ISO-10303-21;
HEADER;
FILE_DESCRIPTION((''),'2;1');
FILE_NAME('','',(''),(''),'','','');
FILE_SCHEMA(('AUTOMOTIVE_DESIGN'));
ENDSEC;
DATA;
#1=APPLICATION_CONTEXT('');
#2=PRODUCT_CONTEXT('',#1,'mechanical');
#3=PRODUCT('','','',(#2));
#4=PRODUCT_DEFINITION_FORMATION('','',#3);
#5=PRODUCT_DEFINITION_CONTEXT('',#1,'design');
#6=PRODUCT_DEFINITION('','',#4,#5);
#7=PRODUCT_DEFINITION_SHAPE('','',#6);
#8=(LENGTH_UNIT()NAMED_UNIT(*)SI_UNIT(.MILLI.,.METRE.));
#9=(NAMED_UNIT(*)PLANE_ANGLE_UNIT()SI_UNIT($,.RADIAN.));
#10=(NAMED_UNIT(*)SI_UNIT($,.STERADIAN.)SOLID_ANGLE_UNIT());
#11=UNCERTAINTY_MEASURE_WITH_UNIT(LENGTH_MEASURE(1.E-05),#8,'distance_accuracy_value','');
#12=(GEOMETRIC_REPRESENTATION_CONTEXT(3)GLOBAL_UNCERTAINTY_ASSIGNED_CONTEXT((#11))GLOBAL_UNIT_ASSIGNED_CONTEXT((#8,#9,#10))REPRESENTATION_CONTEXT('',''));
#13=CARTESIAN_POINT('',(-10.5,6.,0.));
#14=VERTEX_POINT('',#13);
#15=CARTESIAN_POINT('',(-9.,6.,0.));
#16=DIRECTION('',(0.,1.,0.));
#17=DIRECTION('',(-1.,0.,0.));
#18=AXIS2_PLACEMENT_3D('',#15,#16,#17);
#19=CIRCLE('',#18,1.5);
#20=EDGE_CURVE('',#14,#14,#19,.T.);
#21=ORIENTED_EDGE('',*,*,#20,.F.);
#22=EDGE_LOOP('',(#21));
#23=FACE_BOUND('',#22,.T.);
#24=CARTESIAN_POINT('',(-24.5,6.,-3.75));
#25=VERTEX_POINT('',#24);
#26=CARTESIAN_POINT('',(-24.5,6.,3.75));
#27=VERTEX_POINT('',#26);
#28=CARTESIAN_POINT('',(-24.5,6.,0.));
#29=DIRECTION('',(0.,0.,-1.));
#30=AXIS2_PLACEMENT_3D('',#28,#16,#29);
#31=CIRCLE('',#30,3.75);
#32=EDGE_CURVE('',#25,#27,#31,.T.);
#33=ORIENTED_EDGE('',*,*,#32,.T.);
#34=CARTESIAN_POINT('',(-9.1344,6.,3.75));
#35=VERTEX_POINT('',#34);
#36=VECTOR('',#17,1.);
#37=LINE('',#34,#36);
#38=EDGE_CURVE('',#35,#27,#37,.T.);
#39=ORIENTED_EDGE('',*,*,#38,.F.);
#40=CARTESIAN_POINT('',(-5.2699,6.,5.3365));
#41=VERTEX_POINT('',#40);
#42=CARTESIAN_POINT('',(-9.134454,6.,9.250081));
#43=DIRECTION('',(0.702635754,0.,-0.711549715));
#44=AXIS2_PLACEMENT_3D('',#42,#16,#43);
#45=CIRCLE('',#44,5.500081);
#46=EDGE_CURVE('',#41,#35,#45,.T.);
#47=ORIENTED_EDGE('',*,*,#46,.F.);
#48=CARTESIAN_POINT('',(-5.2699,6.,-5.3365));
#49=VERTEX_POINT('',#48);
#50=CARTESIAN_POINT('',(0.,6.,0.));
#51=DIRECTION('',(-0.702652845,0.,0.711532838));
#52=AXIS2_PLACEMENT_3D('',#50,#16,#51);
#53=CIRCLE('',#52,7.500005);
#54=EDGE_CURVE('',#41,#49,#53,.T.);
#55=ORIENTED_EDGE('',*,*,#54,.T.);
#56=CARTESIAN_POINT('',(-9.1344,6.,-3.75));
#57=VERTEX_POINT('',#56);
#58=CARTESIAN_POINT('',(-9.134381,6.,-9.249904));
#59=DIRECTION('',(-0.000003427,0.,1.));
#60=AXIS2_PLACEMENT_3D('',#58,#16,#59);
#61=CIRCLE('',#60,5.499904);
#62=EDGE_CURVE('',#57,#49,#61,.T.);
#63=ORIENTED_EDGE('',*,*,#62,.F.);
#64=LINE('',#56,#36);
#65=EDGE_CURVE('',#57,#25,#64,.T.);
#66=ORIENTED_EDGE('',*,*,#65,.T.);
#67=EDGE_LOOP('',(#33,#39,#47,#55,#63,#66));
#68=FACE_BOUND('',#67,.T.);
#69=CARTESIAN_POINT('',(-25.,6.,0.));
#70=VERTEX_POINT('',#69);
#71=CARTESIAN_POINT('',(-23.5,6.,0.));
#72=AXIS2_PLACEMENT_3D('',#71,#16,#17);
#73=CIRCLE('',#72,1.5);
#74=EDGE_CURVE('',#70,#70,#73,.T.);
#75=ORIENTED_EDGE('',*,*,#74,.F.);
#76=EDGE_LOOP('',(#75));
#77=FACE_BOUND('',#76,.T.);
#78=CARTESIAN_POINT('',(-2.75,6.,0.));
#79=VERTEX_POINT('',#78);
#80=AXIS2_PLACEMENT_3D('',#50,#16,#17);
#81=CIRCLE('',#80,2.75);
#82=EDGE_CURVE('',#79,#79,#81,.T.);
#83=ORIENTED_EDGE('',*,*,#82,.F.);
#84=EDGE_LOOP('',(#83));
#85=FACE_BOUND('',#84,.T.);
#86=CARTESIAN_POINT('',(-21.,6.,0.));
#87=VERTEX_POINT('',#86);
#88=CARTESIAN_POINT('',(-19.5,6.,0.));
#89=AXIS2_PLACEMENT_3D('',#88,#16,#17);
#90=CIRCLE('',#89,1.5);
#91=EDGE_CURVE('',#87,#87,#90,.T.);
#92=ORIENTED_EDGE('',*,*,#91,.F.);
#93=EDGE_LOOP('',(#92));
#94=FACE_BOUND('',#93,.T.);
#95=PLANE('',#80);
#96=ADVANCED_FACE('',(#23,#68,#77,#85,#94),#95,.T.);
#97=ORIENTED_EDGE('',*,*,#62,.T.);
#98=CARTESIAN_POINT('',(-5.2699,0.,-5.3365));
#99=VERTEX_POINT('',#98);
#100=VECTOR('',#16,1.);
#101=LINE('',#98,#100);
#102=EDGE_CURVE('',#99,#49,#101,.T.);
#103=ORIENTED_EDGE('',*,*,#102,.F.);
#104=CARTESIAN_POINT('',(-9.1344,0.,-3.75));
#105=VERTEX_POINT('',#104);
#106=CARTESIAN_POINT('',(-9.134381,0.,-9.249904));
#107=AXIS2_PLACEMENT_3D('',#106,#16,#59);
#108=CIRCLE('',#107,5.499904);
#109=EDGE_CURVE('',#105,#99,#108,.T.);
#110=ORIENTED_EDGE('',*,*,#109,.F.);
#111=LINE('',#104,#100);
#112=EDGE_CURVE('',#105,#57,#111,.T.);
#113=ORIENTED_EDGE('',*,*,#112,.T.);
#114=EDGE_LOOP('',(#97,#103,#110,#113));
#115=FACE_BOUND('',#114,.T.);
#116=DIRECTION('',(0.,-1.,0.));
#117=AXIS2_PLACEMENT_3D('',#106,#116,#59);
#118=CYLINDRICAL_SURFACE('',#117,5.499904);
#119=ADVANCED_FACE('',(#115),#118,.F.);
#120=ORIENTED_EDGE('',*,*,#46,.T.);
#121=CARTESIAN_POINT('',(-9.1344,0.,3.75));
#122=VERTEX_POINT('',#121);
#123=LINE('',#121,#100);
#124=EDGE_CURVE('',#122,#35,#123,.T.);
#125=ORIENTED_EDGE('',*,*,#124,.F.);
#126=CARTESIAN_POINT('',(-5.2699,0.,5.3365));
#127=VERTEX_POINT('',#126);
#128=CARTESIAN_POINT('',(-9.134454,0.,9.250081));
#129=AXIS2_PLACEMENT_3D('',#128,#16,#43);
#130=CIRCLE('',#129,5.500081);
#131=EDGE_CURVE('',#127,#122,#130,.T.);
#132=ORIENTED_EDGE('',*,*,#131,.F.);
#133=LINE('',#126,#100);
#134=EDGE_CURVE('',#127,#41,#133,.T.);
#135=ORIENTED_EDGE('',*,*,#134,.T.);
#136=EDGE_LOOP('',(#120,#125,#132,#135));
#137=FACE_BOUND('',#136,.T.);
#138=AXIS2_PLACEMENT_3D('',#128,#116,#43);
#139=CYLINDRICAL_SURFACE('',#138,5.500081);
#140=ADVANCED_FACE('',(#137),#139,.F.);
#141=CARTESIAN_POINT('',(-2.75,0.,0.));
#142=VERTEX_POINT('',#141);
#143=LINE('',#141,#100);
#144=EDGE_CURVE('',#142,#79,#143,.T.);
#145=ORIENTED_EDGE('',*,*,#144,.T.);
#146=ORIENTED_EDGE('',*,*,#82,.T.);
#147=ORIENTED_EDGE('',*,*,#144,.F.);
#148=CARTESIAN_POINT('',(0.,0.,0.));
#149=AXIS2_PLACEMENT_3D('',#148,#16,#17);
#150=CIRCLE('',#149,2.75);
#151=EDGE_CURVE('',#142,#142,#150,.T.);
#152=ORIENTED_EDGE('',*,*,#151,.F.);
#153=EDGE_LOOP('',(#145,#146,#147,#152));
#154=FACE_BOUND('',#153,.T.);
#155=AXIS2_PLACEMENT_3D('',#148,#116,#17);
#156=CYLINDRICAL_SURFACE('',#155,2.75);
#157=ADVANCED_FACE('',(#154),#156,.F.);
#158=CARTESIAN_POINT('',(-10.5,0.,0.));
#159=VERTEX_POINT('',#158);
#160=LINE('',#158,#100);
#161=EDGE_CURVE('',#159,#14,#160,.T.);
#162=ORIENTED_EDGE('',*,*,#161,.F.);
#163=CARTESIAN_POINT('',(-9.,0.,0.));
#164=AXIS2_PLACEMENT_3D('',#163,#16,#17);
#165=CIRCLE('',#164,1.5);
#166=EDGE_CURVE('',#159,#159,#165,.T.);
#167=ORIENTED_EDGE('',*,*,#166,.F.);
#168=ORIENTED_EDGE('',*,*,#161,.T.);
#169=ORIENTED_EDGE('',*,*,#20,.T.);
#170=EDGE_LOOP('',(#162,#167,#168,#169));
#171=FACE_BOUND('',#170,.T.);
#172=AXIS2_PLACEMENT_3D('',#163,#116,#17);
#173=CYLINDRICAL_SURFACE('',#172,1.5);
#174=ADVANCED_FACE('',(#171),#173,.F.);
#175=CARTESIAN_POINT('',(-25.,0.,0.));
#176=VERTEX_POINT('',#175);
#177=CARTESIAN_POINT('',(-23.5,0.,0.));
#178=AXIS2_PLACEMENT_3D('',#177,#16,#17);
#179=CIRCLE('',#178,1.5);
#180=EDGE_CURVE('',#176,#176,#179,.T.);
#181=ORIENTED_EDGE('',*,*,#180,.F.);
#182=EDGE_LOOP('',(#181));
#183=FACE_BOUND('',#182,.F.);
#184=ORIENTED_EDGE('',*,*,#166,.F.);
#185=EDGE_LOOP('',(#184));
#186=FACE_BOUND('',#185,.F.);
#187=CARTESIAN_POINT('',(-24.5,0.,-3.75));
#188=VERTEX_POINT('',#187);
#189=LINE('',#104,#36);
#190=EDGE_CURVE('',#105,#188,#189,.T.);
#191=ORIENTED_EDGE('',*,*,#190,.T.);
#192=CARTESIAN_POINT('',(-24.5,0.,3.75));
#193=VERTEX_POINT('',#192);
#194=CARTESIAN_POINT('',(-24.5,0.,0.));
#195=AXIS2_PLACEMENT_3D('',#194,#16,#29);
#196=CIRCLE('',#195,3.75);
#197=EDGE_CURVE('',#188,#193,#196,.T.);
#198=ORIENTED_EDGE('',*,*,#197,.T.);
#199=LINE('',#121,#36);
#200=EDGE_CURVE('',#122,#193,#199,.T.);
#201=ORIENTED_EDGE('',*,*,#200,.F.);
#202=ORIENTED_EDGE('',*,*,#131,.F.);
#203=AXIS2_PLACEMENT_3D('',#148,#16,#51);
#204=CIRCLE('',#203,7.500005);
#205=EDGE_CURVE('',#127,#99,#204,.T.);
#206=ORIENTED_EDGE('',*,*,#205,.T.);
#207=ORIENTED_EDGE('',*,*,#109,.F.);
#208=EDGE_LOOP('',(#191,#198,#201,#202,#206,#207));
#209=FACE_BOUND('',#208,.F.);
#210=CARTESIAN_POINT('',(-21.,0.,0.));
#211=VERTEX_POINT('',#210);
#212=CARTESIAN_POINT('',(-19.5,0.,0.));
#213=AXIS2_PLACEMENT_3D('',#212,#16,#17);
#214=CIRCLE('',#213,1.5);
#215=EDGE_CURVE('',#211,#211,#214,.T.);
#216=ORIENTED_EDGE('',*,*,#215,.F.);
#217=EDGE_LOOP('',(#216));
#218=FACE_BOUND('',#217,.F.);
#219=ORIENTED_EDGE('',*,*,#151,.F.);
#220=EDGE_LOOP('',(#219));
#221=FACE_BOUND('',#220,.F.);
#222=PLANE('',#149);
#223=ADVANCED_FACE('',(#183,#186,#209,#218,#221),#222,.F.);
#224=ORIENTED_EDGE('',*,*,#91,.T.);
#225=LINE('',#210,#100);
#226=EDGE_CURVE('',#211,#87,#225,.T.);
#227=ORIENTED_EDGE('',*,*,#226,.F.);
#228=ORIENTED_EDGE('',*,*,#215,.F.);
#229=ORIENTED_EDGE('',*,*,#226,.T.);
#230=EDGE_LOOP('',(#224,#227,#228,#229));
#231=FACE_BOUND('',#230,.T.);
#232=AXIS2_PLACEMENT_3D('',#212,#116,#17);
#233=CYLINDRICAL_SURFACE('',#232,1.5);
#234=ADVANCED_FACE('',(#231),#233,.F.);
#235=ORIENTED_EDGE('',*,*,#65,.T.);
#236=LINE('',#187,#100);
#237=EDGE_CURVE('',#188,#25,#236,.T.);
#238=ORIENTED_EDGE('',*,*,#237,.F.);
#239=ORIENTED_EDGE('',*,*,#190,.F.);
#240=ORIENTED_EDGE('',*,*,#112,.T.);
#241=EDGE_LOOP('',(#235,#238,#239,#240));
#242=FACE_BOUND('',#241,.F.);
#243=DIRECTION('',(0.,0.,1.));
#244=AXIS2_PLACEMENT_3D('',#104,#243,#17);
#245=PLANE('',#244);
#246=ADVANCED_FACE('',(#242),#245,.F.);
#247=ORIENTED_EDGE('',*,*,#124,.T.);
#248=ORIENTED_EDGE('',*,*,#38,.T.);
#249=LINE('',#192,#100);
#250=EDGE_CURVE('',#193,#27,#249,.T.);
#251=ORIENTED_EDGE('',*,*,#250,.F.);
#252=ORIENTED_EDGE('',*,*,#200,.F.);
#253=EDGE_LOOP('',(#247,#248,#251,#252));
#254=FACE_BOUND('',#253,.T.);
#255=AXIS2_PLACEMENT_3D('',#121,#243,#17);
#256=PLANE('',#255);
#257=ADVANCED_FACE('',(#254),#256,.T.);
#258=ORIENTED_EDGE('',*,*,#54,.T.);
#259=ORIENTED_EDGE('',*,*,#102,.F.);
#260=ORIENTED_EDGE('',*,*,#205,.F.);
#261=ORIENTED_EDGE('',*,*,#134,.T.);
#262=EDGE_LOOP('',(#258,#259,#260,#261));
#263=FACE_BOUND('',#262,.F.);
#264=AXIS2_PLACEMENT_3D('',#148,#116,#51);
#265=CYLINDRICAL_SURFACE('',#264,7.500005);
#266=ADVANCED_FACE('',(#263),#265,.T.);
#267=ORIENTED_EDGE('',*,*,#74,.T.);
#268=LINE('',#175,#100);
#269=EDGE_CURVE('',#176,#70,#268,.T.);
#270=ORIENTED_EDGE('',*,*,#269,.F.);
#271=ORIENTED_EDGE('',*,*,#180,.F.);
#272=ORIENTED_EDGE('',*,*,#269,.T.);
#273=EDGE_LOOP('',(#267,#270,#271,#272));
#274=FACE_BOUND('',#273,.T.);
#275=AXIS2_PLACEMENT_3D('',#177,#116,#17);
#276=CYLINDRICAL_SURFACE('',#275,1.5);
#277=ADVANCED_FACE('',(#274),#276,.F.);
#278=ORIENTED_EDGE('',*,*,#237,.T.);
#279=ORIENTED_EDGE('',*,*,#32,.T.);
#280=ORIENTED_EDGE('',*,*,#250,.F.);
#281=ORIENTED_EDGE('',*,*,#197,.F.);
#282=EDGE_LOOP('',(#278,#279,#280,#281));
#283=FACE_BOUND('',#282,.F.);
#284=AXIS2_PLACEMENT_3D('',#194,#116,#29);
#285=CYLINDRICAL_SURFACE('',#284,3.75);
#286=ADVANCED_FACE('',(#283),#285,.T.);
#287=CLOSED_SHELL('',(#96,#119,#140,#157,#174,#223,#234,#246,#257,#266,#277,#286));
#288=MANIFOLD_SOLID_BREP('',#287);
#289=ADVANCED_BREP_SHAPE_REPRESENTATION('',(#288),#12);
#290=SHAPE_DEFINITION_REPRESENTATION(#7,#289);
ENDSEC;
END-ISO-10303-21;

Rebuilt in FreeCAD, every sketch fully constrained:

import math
import FreeCAD as App
import Part
import Sketcher

V = App.Vector
Q = App.Units.Quantity

doc = App.newDocument("Part")
params = doc.addObject("Spreadsheet::Sheet", "Params")
for row, (alias, value) in enumerate([
    ("sketch1_diameter", "3 mm"),
    ("sketch1_diameter2", "5.5 mm"),
    ("sketch1_radius", "5.5 mm"),
    ("sketch1_radius2", "7.5 mm"),
    ("sketch1_radius3", "3.75 mm"),
    ("pad1_length", "6 mm"),
], start=1):
    params.set(f"A{row}", alias)
    params.set(f"B{row}", "=" + value)
    params.setAlias(f"B{row}", alias)

body = doc.addObject("PartDesign::Body", "Body")

# Sketch on XZ plane
sketch1 = body.newObject("Sketcher::SketchObject", "Sketch")
sketch1.AttachmentSupport = (doc.getObject("XZ_Plane"), [""])
sketch1.MapMode = "FlatFace"
sketch1.addGeometry([
    Part.ArcOfCircle(Part.Circle(V(-9.1344, 9.25, 0), V(0, 0, 1), 5.499986), math.radians(-90), math.radians(-45.360948)),  # 0
    Part.ArcOfCircle(Part.Circle(V(0, 0, 0), V(0, 0, 1), 7.500005), math.radians(-134.640231), math.radians(134.640231)),  # 1
    Part.ArcOfCircle(Part.Circle(V(-9.1344, -9.25, 0), V(0, 0, 1), 5.5), math.radians(45.360948), math.radians(90)),  # 2
    Part.LineSegment(V(-9.1344, -3.75, 0), V(-24.5, -3.75, 0)),  # 3
    Part.ArcOfCircle(Part.Circle(V(-24.5, 0, 0), V(0, 0, 1), 3.75), math.radians(90), math.radians(270)),  # 4
    Part.LineSegment(V(-24.5, 3.75, 0), V(-9.1344, 3.75, 0)),  # 5
    Part.Circle(V(0, 0, 0), V(0, 0, 1), 2.75),  # 6
    Part.Circle(V(-9, 0, 0), V(0, 0, 1), 1.5),  # 7
    Part.Circle(V(-19.5, 0, 0), V(0, 0, 1), 1.5),  # 8
    Part.Circle(V(-23.5, 0, 0), V(0, 0, 1), 1.5),  # 9
], False)
sketch1.addConstraint([
    Sketcher.Constraint("Tangent", 0, 2, 1, 2),
    Sketcher.Constraint("Tangent", 1, 1, 2, 1),
    Sketcher.Constraint("Tangent", 2, 2, 3, 1),
    Sketcher.Constraint("Tangent", 3, 2, 4, 2),
    Sketcher.Constraint("Tangent", 4, 1, 5, 1),
    Sketcher.Constraint("Tangent", 5, 2, 0, 1),
    Sketcher.Constraint("Horizontal", 3),
    Sketcher.Constraint("Horizontal", 5),
    Sketcher.Constraint("Coincident", 1, 3, -1, 1),
    Sketcher.Constraint("Coincident", 6, 3, -1, 1),
    Sketcher.Constraint("Equal", 0, 2),
    Sketcher.Constraint("Equal", 7, 8),
    Sketcher.Constraint("Equal", 8, 9),
    Sketcher.Constraint("PointOnObject", 4, 3, -1),
    Sketcher.Constraint("PointOnObject", 7, 3, -1),
    Sketcher.Constraint("PointOnObject", 8, 3, -1),
    Sketcher.Constraint("PointOnObject", 9, 3, -1),
    Sketcher.Constraint("Diameter", 7, Q("3 mm")),
    Sketcher.Constraint("Diameter", 6, Q("5.5 mm")),
    Sketcher.Constraint("Radius", 0, Q("5.5 mm")),
    Sketcher.Constraint("Radius", 1, Q("7.5 mm")),
    Sketcher.Constraint("Radius", 4, Q("3.75 mm")),
    Sketcher.Constraint("DistanceX", 7, 3, -1, 1, Q("9 mm")),
    Sketcher.Constraint("DistanceX", 9, 3, 8, 3, Q("4 mm")),
    Sketcher.Constraint("DistanceX", 4, 3, -1, 1, Q("24.5 mm")),
    Sketcher.Constraint("DistanceX", 8, 3, 7, 3, Q("10.5 mm")),
])
sketch1.setExpression("Constraints[17]", "Params.sketch1_diameter")
sketch1.setExpression("Constraints[18]", "Params.sketch1_diameter2")
sketch1.setExpression("Constraints[19]", "Params.sketch1_radius")
sketch1.setExpression("Constraints[20]", "Params.sketch1_radius2")
sketch1.setExpression("Constraints[21]", "Params.sketch1_radius3")
pad1 = body.newObject("PartDesign::Pad", "Pad")
pad1.Profile = sketch1
pad1.setExpression("Length", "Params.pad1_length")
pad1.Reversed = True

doc.recompute()
